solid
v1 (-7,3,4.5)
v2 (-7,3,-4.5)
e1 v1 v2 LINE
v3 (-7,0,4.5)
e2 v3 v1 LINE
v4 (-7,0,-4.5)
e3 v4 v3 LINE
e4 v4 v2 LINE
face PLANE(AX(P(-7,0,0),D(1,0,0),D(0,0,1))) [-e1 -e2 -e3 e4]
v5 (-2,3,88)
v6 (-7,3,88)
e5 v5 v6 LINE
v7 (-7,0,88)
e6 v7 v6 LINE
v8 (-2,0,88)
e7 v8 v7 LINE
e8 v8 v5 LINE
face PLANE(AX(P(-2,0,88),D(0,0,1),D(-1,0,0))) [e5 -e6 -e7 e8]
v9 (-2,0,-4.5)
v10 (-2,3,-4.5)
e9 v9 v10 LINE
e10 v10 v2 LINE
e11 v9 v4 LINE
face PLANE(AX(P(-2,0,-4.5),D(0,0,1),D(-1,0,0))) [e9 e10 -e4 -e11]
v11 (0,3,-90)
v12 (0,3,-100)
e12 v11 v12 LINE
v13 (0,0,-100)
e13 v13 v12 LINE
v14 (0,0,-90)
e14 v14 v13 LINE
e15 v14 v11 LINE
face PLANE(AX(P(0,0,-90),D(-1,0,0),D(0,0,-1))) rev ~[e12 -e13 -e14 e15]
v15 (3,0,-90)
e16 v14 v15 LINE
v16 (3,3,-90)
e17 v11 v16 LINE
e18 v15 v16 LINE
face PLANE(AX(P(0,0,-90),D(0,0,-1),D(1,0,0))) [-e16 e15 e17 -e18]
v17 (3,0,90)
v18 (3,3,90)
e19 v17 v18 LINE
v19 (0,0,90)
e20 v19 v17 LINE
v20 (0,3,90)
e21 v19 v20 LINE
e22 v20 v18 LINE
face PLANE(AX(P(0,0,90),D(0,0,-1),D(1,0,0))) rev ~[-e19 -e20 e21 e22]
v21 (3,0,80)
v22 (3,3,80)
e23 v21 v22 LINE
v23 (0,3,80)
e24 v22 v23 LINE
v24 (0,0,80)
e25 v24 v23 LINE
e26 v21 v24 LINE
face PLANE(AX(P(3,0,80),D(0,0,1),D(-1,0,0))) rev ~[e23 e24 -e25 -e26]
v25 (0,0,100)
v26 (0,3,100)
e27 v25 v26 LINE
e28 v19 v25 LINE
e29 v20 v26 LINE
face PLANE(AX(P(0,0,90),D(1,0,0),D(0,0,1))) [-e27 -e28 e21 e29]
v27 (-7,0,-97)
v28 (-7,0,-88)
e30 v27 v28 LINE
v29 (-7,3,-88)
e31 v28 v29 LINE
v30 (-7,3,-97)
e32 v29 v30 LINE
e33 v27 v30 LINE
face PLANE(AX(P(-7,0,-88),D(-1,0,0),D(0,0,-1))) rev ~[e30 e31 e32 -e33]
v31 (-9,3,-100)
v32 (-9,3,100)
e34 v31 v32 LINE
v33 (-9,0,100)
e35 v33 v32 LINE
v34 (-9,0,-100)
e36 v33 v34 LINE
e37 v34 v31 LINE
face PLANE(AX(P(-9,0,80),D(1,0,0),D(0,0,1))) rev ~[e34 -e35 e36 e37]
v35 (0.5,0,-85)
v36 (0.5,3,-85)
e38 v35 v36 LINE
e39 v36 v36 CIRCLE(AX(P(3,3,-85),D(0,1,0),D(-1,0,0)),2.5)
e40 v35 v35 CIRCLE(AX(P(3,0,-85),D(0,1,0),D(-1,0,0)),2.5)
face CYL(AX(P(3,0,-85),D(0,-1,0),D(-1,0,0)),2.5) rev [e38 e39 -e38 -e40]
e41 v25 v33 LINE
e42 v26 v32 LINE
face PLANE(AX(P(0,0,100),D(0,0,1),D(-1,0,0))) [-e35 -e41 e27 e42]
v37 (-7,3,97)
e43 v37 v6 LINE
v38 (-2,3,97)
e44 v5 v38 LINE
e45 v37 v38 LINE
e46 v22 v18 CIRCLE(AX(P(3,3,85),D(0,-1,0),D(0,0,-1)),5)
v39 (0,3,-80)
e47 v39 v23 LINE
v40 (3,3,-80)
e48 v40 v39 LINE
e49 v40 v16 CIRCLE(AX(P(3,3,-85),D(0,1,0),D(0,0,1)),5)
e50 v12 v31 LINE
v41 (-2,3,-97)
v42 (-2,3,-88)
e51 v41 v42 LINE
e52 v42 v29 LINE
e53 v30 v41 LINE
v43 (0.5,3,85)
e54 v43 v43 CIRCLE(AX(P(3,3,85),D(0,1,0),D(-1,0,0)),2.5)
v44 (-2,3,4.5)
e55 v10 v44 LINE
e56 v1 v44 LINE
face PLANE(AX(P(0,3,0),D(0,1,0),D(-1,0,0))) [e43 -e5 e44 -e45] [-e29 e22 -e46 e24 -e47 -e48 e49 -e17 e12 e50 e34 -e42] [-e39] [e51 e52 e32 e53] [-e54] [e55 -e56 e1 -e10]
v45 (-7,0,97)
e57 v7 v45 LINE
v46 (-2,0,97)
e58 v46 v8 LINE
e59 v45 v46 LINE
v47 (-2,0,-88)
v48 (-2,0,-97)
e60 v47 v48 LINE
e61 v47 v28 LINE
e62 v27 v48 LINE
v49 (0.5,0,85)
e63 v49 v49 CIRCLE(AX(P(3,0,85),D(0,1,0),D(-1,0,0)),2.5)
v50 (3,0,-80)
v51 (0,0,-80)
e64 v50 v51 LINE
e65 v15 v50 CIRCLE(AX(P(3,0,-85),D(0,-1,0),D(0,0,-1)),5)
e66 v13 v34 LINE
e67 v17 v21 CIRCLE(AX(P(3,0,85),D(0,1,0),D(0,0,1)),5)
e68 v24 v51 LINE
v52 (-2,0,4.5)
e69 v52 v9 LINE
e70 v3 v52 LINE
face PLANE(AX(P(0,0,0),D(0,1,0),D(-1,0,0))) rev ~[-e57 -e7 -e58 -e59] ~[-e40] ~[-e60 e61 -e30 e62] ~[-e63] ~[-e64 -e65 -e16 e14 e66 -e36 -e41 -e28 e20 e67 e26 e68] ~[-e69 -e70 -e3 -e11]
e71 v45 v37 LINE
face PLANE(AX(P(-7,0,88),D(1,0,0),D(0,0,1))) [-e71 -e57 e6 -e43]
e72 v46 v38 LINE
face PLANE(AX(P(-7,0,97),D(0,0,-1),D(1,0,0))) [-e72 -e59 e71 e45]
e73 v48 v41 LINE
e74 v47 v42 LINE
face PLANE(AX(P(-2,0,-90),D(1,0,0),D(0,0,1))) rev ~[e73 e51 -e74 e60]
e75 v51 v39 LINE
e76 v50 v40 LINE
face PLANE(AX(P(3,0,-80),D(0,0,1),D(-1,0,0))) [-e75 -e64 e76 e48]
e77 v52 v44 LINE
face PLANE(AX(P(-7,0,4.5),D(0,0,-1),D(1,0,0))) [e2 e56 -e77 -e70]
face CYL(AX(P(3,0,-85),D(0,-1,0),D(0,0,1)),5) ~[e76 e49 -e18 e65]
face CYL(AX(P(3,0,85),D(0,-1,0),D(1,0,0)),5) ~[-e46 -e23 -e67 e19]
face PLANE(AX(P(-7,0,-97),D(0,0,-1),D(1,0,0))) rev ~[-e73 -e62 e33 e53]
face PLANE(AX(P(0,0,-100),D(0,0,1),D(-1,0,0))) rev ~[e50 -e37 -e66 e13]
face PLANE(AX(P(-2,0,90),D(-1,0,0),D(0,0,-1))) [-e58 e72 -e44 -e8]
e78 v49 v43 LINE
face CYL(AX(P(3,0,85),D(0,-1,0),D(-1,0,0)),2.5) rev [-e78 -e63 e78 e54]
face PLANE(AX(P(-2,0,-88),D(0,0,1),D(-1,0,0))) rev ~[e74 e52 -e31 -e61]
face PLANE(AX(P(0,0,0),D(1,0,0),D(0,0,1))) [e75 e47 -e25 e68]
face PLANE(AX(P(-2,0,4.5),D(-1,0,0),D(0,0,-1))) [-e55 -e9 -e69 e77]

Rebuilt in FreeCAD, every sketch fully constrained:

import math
import FreeCAD as App
import Part
import Sketcher
from FreeCAD import Vector

doc = App.newDocument("Part")
params = doc.addObject("Spreadsheet::Sheet", "Params")
for row, (alias, value) in enumerate([
    ("sketch1_diameter", "5 mm"),
    ("sketch1_radius", "5 mm"),
    ("sketch1_width", "3 mm"),
    ("sketch1_width2", "9 mm"),
    ("sketch1_width3", "5 mm"),
    ("pad1_length", "3 mm"),
], start=1):
    params.set(f"A{row}", alias)
    params.set(f"B{row}", "=" + value)
    params.setAlias(f"B{row}", alias)

body = doc.addObject("PartDesign::Body", "Body")

# Sketch on XZ plane
sketch1 = body.newObject("Sketcher::SketchObject", "Sketch")
sketch1.AttachmentSupport = (doc.getObject("XZ_Plane"), [""])
sketch1.MapMode = "FlatFace"
sketch1.addGeometry([
    Part.LineSegment(Vector(3, 80, 0), Vector(0, 80, 0)),  # 0
    Part.LineSegment(Vector(0, 80, 0), Vector(0, -80, 0)),  # 1
    Part.LineSegment(Vector(0, -80, 0), Vector(3, -80, 0)),  # 2
    Part.ArcOfCircle(Part.Circle(Vector(3, -85, 0), Vector(0, 0, 1), 5), math.radians(-90), math.radians(90)),  # 3
    Part.LineSegment(Vector(3, -90, 0), Vector(0, -90, 0)),  # 4
    Part.LineSegment(Vector(0, -90, 0), Vector(0, -100, 0)),  # 5
    Part.LineSegment(Vector(0, -100, 0), Vector(-9, -100, 0)),  # 6
    Part.LineSegment(Vector(-9, -100, 0), Vector(-9, 100, 0)),  # 7
    Part.LineSegment(Vector(-9, 100, 0), Vector(0, 100, 0)),  # 8
    Part.LineSegment(Vector(0, 100, 0), Vector(0, 90, 0)),  # 9
    Part.LineSegment(Vector(0, 90, 0), Vector(3, 90, 0)),  # 10
    Part.ArcOfCircle(Part.Circle(Vector(3, 85, 0), Vector(0, 0, 1), 5), math.radians(-90), math.radians(90)),  # 11
    Part.LineSegment(Vector(-2, 88, 0), Vector(-2, 97, 0)),  # 12
    Part.LineSegment(Vector(-2, 97, 0), Vector(-7, 97, 0)),  # 13
    Part.LineSegment(Vector(-7, 97, 0), Vector(-7, 88, 0)),  # 14
    Part.LineSegment(Vector(-7, 88, 0), Vector(-2, 88, 0)),  # 15
    Part.Circle(Vector(3, 85, 0), Vector(0, 0, 1), 2.5),  # 16
    Part.LineSegment(Vector(-7, 4.5, 0), Vector(-7, -4.5, 0)),  # 17
    Part.LineSegment(Vector(-7, -4.5, 0), Vector(-2, -4.5, 0)),  # 18
    Part.LineSegment(Vector(-2, -4.5, 0), Vector(-2, 4.5, 0)),  # 19
    Part.LineSegment(Vector(-2, 4.5, 0), Vector(-7, 4.5, 0)),  # 20
    Part.Circle(Vector(3, -85, 0), Vector(0, 0, 1), 2.5),  # 21
    Part.LineSegment(Vector(-7, -88, 0), Vector(-7, -97, 0)),  # 22
    Part.LineSegment(Vector(-7, -97, 0), Vector(-2, -97, 0)),  # 23
    Part.LineSegment(Vector(-2, -97, 0), Vector(-2, -88, 0)),  # 24
    Part.LineSegment(Vector(-2, -88, 0), Vector(-7, -88, 0)),  # 25
], False)
sketch1.addConstraint([
    Sketcher.Constraint("Coincident", 0, 2, 1, 1),
    Sketcher.Constraint("Coincident", 1, 2, 2, 1),
    Sketcher.Constraint("Tangent", 2, 2, 3, 2),
    Sketcher.Constraint("Tangent", 3, 1, 4, 1),
    Sketcher.Constraint("Coincident", 4, 2, 5, 1),
    Sketcher.Constraint("Coincident", 5, 2, 6, 1),
    Sketcher.Constraint("Coincident", 6, 2, 7, 1),
    Sketcher.Constraint("Coincident", 7, 2, 8, 1),
    Sketcher.Constraint("Coincident", 8, 2, 9, 1),
    Sketcher.Constraint("Coincident", 9, 2, 10, 1),
    Sketcher.Constraint("Tangent", 10, 2, 11, 2),
    Sketcher.Constraint("Tangent", 11, 1, 0, 1),
    Sketcher.Constraint("Coincident", 12, 2, 13, 1),
    Sketcher.Constraint("Coincident", 13, 2, 14, 1),
    Sketcher.Constraint("Coincident", 14, 2, 15, 1),
    Sketcher.Constraint("Coincident", 15, 2, 12, 1),
    Sketcher.Constraint("Coincident", 17, 2, 18, 1),
    Sketcher.Constraint("Coincident", 18, 2, 19, 1),
    Sketcher.Constraint("Coincident", 19, 2, 20, 1),
    Sketcher.Constraint("Coincident", 20, 2, 17, 1),
    Sketcher.Constraint("Coincident", 22, 2, 23, 1),
    Sketcher.Constraint("Coincident", 23, 2, 24, 1),
    Sketcher.Constraint("Coincident", 24, 2, 25, 1),
    Sketcher.Constraint("Coincident", 25, 2, 22, 1),
    Sketcher.Constraint("Horizontal", 0),
    Sketcher.Constraint("Vertical", 1),
    Sketcher.Constraint("Horizontal", 2),
    Sketcher.Constraint("Horizontal", 4),
    Sketcher.Constraint("Vertical", 5),
    Sketcher.Constraint("Horizontal", 6),
    Sketcher.Constraint("Vertical", 7),
    Sketcher.Constraint("Horizontal", 8),
    Sketcher.Constraint("Vertical", 9),
    Sketcher.Constraint("Horizontal", 10),
    Sketcher.Constraint("Vertical", 12),
    Sketcher.Constraint("Horizontal", 13),
    Sketcher.Constraint("Vertical", 14),
    Sketcher.Constraint("Horizontal", 15),
    Sketcher.Constraint("Vertical", 17),
    Sketcher.Constraint("Horizontal", 18),
    Sketcher.Constraint("Vertical", 19),
    Sketcher.Constraint("Horizontal", 20),
    Sketcher.Constraint("Vertical", 22),
    Sketcher.Constraint("Horizontal", 23),
    Sketcher.Constraint("Vertical", 24),
    Sketcher.Constraint("Horizontal", 25),
    Sketcher.Constraint("Coincident", 16, 3, 11, 3),
    Sketcher.Constraint("Coincident", 21, 3, 3, 3),
    Sketcher.Constraint("Equal", 3, 11),
    Sketcher.Constraint("Equal", 16, 21),
    Sketcher.Constraint("Symmetric", 0, 2, 1, 2, -1, 1),
    Sketcher.Constraint("Symmetric", 5, 2, 8, 2, -1, 1),
    Sketcher.Constraint("Symmetric", 13, 2, 22, 2, -1),
    Sketcher.Constraint("Symmetric", 15, 2, 24, 2, -1),
    Sketcher.Constraint("PointOnObject", 4, 2, -2),
    Sketcher.Constraint("Vertical", 3, 3, 11, 3),
    Sketcher.Constraint("Vertical", 14, 2, 17, 2),
    Sketcher.Constraint("Vertical", 15, 2, 18, 2),
    Sketcher.Constraint("Equal", 8, 12),
    Sketcher.Constraint("Equal", 14, 17),
    Sketcher.Constraint("Diameter", 16, 5.0),
    Sketcher.Constraint("Radius", 3, 5.0),
    Sketcher.Constraint("DistanceX", 0, 2, 0, 1, 3.0),
    Sketcher.Constraint("DistanceX", 6, 2, 6, 1, 9.0),
    Sketcher.Constraint("DistanceX", 13, 2, 13, 1, 5.0),
    Sketcher.Constraint("DistanceY", 1, 2, 1, 1, 160.0),
    Sketcher.Constraint("DistanceY", 5, 2, 5, 1, 10.0),
    Sketcher.Constraint("DistanceY", 12, 2, 8, 2, 3.0),
    Sketcher.Constraint("DistanceX", 12, 2, 10, 2, 5.0),
    Sketcher.Constraint("DistanceY", 17, 2, -1, 1, 4.5),
])
sketch1.setExpression("Constraints[60]", "Params.sketch1_diameter")
sketch1.setExpression("Constraints[61]", "Params.sketch1_radius")
sketch1.setExpression("Constraints[62]", "Params.sketch1_width")
sketch1.setExpression("Constraints[63]", "Params.sketch1_width2")
sketch1.setExpression("Constraints[64]", "Params.sketch1_width3")
pad1 = body.newObject("PartDesign::Pad", "Pad")
pad1.Profile = sketch1
pad1.setExpression("Length", "Params.pad1_length")
pad1.Reversed = True

doc.recompute()
